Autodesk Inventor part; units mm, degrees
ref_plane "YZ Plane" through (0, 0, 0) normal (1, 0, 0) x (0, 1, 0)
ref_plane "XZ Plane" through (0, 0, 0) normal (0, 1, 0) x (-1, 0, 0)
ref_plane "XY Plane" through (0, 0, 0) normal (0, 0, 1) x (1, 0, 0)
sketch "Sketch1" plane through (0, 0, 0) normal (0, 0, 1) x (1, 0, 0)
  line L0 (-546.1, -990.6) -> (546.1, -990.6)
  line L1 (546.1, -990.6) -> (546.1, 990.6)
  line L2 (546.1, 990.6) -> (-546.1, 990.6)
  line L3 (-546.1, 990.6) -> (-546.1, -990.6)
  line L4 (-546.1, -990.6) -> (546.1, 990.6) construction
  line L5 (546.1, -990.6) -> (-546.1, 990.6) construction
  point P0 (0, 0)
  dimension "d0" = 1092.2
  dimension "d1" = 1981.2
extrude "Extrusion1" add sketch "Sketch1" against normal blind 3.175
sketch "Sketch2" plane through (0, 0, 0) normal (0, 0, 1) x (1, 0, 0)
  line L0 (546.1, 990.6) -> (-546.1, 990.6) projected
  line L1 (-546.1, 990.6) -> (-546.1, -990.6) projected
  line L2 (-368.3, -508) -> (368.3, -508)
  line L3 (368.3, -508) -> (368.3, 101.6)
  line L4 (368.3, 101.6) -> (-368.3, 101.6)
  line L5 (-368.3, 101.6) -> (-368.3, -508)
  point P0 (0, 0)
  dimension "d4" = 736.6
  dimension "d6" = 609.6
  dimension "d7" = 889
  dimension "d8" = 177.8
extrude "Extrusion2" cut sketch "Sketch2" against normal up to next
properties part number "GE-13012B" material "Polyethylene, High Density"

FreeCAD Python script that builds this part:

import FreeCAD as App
import Part
import Sketcher

V = App.Vector
Q = App.Units.Quantity

doc = App.newDocument("Part")
body = doc.addObject("PartDesign::Body", "Body")

# Sketch on XY plane
sketch1 = body.newObject("Sketcher::SketchObject", "Sketch")
sketch1.AttachmentSupport = (doc.getObject("XY_Plane"), [""])
sketch1.MapMode = "FlatFace"
sketch1.addGeometry(Part.LineSegment(V(-546, 991, 0), V(-546, -991, 0)), False)
sketch1.addGeometry(Part.LineSegment(V(-546, -991, 0), V(546, -991, 0)), False)
sketch1.addGeometry(Part.LineSegment(V(546, -991, 0), V(546, 991, 0)), False)
sketch1.addGeometry(Part.LineSegment(V(546, 991, 0), V(-546, 991, 0)), False)
sketch1.addConstraint(Sketcher.Constraint("Coincident", 0, 2, 1, 1))
sketch1.addConstraint(Sketcher.Constraint("Coincident", 1, 2, 2, 1))
sketch1.addConstraint(Sketcher.Constraint("Coincident", 2, 2, 3, 1))
sketch1.addConstraint(Sketcher.Constraint("Coincident", 3, 2, 0, 1))
sketch1.addConstraint(Sketcher.Constraint("Vertical", 0))
sketch1.addConstraint(Sketcher.Constraint("Horizontal", 1))
sketch1.addConstraint(Sketcher.Constraint("Vertical", 2))
sketch1.addConstraint(Sketcher.Constraint("Horizontal", 3))
sketch1.addConstraint(Sketcher.Constraint("Symmetric", 0, 2, 2, 2, -1, 1))
sketch1.addConstraint(Sketcher.Constraint("DistanceX", 1, 1, 1, 2, Q("43 in")))
sketch1.addConstraint(Sketcher.Constraint("DistanceY", 0, 2, 0, 1, Q("78 in")))
pad1 = body.newObject("PartDesign::Pad", "Pad")
pad1.Profile = sketch1
pad1.Length = Q("0.125 in")
pad1.Reversed = True

# Sketch on XY plane
sketch2 = body.newObject("Sketcher::SketchObject", "Sketch001")
sketch2.AttachmentSupport = (doc.getObject("XY_Plane"), [""])
sketch2.MapMode = "FlatFace"
sketch2.addGeometry(Part.LineSegment(V(-368, 102, 0), V(-368, -508, 0)), False)
sketch2.addGeometry(Part.LineSegment(V(-368, -508, 0), V(368, -508, 0)), False)
sketch2.addGeometry(Part.LineSegment(V(368, -508, 0), V(368, 102, 0)), False)
sketch2.addGeometry(Part.LineSegment(V(368, 102, 0), V(-368, 102, 0)), False)
sketch2.addConstraint(Sketcher.Constraint("Coincident", 0, 2, 1, 1))
sketch2.addConstraint(Sketcher.Constraint("Coincident", 1, 2, 2, 1))
sketch2.addConstraint(Sketcher.Constraint("Coincident", 2, 2, 3, 1))
sketch2.addConstraint(Sketcher.Constraint("Coincident", 3, 2, 0, 1))
sketch2.addConstraint(Sketcher.Constraint("Vertical", 0))
sketch2.addConstraint(Sketcher.Constraint("Horizontal", 1))
sketch2.addConstraint(Sketcher.Constraint("Vertical", 2))
sketch2.addConstraint(Sketcher.Constraint("Horizontal", 3))
sketch2.addConstraint(Sketcher.Constraint("DistanceX", 1, 1, 1, 2, Q("29 in")))
sketch2.addConstraint(Sketcher.Constraint("DistanceY", 0, 2, 0, 1, Q("24 in")))
sketch2.addConstraint(Sketcher.Constraint("DistanceY", 0, 2, -1, 1, Q("20 in")))
sketch2.addConstraint(Sketcher.Constraint("DistanceX", 0, 2, -1, 1, Q("14.5 in")))
pocket1 = body.newObject("PartDesign::Pocket", "Pocket")
pocket1.Profile = sketch2
pocket1.Type = "UpToFirst"

doc.recompute()
